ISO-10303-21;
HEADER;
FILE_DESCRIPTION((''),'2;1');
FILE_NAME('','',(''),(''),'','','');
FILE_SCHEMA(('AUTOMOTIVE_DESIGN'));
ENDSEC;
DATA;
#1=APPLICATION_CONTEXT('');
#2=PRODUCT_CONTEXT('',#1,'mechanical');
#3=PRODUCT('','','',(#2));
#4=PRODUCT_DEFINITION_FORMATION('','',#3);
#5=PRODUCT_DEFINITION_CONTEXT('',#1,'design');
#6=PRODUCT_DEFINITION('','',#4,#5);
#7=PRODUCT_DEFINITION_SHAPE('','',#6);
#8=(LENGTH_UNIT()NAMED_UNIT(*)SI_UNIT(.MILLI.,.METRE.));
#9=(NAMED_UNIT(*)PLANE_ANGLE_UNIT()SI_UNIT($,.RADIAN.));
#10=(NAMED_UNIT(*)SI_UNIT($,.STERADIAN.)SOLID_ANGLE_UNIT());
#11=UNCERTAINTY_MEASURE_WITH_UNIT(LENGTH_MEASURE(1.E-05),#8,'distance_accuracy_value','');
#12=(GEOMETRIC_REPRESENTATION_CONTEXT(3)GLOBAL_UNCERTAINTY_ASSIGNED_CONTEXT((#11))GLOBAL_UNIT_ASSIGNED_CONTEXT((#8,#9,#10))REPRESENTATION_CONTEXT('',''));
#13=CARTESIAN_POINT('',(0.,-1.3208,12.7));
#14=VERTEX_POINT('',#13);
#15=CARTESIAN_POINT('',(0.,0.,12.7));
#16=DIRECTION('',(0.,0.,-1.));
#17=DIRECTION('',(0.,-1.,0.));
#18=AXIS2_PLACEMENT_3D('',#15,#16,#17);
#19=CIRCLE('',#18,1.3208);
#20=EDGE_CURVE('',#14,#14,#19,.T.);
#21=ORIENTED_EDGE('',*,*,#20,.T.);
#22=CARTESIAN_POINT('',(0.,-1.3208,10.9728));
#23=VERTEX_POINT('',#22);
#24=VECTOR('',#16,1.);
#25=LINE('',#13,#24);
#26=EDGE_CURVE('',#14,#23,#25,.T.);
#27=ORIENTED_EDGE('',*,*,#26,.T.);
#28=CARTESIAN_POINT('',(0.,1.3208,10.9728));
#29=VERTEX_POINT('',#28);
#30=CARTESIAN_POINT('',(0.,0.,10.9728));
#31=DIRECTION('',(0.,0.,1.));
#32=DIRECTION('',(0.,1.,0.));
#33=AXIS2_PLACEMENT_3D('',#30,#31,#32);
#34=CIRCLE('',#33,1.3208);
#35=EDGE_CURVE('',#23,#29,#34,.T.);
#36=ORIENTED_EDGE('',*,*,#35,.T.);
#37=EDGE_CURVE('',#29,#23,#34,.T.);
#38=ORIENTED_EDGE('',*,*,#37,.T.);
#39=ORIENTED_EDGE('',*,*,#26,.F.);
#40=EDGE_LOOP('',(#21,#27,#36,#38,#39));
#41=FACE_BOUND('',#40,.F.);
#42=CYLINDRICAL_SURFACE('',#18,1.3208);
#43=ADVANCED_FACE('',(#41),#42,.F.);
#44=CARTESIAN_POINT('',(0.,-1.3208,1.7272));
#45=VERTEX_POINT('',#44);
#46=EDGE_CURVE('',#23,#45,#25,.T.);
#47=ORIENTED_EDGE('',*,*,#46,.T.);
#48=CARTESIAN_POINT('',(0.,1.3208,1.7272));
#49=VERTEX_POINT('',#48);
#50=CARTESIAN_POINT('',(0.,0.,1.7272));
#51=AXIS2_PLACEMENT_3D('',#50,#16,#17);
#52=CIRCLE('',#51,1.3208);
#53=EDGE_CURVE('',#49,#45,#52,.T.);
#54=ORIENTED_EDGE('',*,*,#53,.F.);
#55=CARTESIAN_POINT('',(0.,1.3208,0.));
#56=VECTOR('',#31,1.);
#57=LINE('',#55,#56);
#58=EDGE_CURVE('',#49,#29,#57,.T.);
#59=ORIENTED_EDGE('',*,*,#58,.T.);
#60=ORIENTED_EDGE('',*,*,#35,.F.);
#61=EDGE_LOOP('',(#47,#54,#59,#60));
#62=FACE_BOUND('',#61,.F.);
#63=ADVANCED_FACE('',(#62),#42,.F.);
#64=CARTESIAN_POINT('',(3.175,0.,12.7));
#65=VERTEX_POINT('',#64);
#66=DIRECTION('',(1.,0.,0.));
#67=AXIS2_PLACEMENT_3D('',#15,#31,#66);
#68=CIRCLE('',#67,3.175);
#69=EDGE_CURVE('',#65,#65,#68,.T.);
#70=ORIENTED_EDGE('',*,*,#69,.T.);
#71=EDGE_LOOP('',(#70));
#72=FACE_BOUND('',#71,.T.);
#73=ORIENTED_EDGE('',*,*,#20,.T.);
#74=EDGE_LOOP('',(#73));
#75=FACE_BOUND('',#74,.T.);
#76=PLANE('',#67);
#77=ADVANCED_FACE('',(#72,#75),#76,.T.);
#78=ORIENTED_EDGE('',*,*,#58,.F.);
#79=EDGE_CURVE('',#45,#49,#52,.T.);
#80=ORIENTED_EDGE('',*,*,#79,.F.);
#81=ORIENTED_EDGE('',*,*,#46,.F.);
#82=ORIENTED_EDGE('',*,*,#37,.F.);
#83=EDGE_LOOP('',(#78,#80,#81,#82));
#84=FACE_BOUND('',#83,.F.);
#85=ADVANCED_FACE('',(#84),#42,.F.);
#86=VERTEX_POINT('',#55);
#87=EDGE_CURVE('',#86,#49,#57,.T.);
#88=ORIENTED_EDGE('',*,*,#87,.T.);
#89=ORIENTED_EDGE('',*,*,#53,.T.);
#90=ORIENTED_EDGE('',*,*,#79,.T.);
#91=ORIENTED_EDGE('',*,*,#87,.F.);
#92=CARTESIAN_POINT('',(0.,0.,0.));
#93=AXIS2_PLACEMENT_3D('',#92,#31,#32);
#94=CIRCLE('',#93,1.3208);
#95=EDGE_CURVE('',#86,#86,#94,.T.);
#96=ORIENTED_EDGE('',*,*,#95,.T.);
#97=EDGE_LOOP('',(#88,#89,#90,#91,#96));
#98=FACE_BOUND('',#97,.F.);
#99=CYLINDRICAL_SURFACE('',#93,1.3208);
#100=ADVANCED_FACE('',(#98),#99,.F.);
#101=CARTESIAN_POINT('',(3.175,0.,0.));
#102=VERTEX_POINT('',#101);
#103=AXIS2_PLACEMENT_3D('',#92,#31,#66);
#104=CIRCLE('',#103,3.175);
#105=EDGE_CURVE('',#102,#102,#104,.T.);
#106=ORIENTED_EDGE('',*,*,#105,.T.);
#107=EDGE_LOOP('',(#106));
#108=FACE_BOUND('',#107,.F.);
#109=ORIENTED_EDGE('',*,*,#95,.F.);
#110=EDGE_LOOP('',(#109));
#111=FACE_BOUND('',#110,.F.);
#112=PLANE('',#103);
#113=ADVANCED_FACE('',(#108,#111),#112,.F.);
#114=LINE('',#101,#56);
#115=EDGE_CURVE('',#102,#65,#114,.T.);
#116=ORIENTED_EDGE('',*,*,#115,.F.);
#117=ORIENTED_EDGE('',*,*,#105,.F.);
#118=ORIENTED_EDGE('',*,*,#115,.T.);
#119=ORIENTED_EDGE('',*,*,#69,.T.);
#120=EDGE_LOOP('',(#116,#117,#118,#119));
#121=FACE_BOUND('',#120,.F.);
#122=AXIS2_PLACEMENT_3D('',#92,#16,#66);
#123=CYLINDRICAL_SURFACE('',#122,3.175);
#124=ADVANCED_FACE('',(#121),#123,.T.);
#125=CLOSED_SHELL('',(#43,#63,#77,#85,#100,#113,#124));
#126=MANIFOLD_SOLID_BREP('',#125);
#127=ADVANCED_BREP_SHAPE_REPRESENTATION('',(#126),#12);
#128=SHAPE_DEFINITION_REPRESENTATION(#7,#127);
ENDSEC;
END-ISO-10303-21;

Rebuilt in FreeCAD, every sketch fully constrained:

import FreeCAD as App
import Part
import Sketcher
from FreeCAD import Vector
Q = App.Units.Quantity

doc = App.newDocument("Part")
body = doc.addObject("PartDesign::Body", "Body")

sketch1 = doc.addObject("Sketcher::SketchObject", "Sketch")
body.addObject(sketch1)
sketch1.AttachmentSupport = (doc.XY_Plane, [""])
sketch1.MapMode = "FlatFace"
sketch1.addGeometry(Part.Circle(Vector(0, 0, 0), Vector(0, 0, 1), 3.175), False)
sketch1.addConstraint([
    Sketcher.Constraint("Coincident", 0, 3, -1, 1),
    Sketcher.Constraint("Diameter", 0, Q("0.25 in")),
])
pad1 = doc.addObject("PartDesign::Pad", "Pad")
body.addObject(pad1)
pad1.Profile = sketch1
pad1.Length = Q("0.5 in")

sketch2 = doc.addObject("Sketcher::SketchObject", "Sketch001")
body.addObject(sketch2)
sketch2.AttachmentSupport = (doc.XY_Plane, [""])
sketch2.MapMode = "FlatFace"
sketch2.AttachmentOffset = App.Placement(Vector(0, 0, 0.5 * 25.4), App.Rotation())
sketch2.addGeometry(Part.Circle(Vector(0, 0, 0), Vector(0, 0, 1), 1.3208), False)
sketch2.addConstraint([
    Sketcher.Constraint("Coincident", 0, 3, -1, 1),
    Sketcher.Constraint("Diameter", 0, Q("0.104 in")),
])
doc.recompute()
hole = doc.addObject("PartDesign::Hole", "Hole")
body.addObject(hole)
hole.Profile = sketch2
hole.ThreadType = "None"
hole.Diameter = Q("0.104 in")
hole.DepthType = "Dimension"
hole.Depth = Q("0.432 in")
hole.DrillPoint = "Angled"
hole.DrillPointAngle = 118

sketch3 = doc.addObject("Sketcher::SketchObject", "Sketch002")
body.addObject(sketch3)
sketch3.AttachmentSupport = (doc.XY_Plane, [""])
sketch3.MapMode = "FlatFace"
sketch3.addGeometry([
    Part.Circle(Vector(0, 0, 0), Vector(0, 0, 1), 1.3208),
    Part.Circle(Vector(0, 0, 0), Vector(0, 0, 1), 1.3208),
], False)
sketch3.addConstraint([
    Sketcher.Constraint("Coincident", 0, 3, -1, 1),
    Sketcher.Constraint("Coincident", 1, 3, -1, 1),
    Sketcher.Constraint("Equal", 0, 1),
    Sketcher.Constraint("Diameter", 0, Q("0.104 in")),
])
doc.recompute()
hole2 = doc.addObject("PartDesign::Hole", "Hole001")
body.addObject(hole2)
hole2.Profile = sketch3
hole2.ThreadType = "None"
hole2.Diameter = Q("0.104 in")
hole2.DepthType = "Dimension"
hole2.Depth = Q("0.432 in")
hole2.DrillPoint = "Angled"
hole2.DrillPointAngle = 118
hole2.Reversed = True

doc.recompute()
